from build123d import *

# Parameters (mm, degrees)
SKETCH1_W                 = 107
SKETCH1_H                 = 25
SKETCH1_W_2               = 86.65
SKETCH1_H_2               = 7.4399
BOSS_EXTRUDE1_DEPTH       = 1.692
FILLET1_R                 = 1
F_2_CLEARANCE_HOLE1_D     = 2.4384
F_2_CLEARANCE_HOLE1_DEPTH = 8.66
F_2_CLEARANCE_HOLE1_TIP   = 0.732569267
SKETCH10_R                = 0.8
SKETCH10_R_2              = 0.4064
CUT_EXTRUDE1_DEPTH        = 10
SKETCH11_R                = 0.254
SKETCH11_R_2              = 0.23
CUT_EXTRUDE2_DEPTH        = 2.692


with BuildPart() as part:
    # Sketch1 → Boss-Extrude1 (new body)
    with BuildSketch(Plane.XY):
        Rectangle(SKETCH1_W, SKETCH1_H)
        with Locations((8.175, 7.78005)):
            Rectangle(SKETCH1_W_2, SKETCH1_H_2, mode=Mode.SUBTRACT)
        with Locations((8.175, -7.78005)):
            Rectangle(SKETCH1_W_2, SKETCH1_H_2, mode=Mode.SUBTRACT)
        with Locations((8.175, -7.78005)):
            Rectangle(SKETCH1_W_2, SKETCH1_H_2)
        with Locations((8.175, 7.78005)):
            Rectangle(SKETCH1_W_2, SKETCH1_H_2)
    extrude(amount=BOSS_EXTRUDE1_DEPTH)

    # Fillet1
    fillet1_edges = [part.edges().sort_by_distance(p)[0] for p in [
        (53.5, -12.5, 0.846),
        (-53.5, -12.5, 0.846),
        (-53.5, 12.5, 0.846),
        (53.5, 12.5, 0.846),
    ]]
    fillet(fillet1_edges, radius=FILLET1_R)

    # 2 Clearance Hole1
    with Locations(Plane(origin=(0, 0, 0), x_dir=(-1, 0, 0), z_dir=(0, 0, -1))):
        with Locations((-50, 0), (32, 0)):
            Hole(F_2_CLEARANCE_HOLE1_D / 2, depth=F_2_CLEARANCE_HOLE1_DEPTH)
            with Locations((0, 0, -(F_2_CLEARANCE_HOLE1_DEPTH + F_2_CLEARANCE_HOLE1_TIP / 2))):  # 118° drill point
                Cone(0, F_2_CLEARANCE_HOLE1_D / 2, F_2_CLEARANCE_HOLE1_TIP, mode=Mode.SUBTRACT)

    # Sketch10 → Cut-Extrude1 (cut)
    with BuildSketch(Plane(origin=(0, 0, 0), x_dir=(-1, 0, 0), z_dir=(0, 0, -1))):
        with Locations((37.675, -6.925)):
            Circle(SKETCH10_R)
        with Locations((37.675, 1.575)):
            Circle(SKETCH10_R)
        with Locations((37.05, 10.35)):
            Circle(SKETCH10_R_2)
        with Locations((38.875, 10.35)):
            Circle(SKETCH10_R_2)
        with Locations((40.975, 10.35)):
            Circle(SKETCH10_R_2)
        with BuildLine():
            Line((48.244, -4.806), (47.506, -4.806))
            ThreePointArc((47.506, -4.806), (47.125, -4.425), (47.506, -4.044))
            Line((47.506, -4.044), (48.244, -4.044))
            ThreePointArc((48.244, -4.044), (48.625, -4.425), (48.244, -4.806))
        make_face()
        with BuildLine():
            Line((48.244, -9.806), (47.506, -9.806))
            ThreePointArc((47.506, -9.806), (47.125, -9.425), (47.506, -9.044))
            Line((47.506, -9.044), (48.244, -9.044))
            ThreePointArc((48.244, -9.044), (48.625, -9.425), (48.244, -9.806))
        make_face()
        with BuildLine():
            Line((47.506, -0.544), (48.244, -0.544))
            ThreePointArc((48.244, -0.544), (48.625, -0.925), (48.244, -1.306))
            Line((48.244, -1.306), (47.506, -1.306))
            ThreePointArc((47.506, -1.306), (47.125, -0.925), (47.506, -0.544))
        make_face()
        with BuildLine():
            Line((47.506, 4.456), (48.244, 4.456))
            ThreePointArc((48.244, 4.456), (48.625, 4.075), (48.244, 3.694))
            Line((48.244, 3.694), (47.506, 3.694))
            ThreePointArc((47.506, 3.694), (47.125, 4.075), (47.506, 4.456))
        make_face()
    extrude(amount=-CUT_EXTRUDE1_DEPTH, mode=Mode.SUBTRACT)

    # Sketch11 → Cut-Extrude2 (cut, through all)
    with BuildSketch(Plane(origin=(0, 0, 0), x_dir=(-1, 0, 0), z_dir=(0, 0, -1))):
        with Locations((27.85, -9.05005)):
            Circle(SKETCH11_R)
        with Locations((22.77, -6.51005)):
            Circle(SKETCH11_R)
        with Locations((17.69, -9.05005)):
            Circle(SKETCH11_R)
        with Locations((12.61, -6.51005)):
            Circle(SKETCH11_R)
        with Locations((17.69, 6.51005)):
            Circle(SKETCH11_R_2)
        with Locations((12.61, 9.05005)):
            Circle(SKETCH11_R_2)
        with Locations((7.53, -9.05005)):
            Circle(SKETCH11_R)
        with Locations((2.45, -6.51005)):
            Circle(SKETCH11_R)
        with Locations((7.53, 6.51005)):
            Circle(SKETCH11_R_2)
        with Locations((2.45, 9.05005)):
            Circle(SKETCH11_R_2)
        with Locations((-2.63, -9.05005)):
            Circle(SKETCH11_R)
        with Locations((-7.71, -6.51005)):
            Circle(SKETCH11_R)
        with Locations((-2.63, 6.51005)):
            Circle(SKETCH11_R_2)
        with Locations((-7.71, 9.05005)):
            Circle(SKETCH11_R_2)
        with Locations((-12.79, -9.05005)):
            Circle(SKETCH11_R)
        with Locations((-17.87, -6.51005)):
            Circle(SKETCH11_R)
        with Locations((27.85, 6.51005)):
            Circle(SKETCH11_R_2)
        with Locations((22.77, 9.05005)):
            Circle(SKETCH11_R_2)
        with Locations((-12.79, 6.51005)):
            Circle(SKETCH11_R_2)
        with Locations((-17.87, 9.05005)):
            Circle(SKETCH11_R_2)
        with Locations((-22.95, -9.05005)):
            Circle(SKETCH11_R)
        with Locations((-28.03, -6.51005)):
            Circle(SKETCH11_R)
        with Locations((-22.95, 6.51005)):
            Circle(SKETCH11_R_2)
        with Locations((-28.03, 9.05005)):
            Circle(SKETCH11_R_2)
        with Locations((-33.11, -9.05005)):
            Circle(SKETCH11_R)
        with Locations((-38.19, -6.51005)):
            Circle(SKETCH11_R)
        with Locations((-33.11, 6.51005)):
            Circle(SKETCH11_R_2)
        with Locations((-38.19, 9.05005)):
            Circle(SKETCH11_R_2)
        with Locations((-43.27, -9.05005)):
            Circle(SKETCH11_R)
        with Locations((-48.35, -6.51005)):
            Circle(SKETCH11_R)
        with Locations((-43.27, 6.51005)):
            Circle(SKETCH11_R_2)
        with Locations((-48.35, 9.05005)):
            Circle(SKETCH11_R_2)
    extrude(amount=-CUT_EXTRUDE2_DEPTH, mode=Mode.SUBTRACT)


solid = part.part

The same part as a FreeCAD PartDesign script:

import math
import FreeCAD as App
import Part
import Sketcher
from FreeCAD import Vector


def edges_at(feature, points):
    """Names of the edges that pass closest to the given points."""
    edges = feature.Shape.Edges
    near = lambda p: min(range(len(edges)), key=lambda i: edges[i].distToShape(Part.Vertex(*p))[0])
    return sorted({f"Edge{near(p) + 1}" for p in points})

doc = App.newDocument("Part")
body = doc.addObject("PartDesign::Body", "Body")

# Sketch on XY plane
sketch1 = doc.addObject("Sketcher::SketchObject", "Sketch")
body.addObject(sketch1)
sketch1.AttachmentSupport = (doc.XY_Plane, [""])
sketch1.MapMode = "FlatFace"
sketch1.addGeometry(Part.LineSegment(Vector(-54, 12, 0), Vector(-54, -12, 0)), False)
sketch1.addGeometry(Part.LineSegment(Vector(-54, -12, 0), Vector(54, -12, 0)), False)
sketch1.addGeometry(Part.LineSegment(Vector(54, -12, 0), Vector(54, 12, 0)), False)
sketch1.addGeometry(Part.LineSegment(Vector(54, 12, 0), Vector(-54, 12, 0)), False)
sketch1.addConstraint(Sketcher.Constraint("Coincident", 0, 2, 1, 1))
sketch1.addConstraint(Sketcher.Constraint("Coincident", 1, 2, 2, 1))
sketch1.addConstraint(Sketcher.Constraint("Coincident", 2, 2, 3, 1))
sketch1.addConstraint(Sketcher.Constraint("Coincident", 3, 2, 0, 1))
sketch1.addConstraint(Sketcher.Constraint("Vertical", 0))
sketch1.addConstraint(Sketcher.Constraint("Horizontal", 1))
sketch1.addConstraint(Sketcher.Constraint("Vertical", 2))
sketch1.addConstraint(Sketcher.Constraint("Horizontal", 3))
sketch1.addConstraint(Sketcher.Constraint("Symmetric", 0, 2, 2, 2, -1, 1))
sketch1.addConstraint(Sketcher.Constraint("DistanceX", 1, 1, 1, 2, 107.0))
sketch1.addConstraint(Sketcher.Constraint("DistanceY", 0, 2, 0, 1, 25.0))
pad1 = doc.addObject("PartDesign::Pad", "Pad")
body.addObject(pad1)
pad1.Profile = sketch1
pad1.Length = 1.692
doc.recompute()

fillet = doc.addObject("PartDesign::Fillet", "Fillet")
body.addObject(fillet)
fillet.Base = (pad1, edges_at(pad1, [
    (53.5, -12.5, 0.846),
    (-53.5, -12.5, 0.846),
    (-53.5, 12.5, 0.846),
    (53.5, 12.5, 0.846),
]))
fillet.Radius = 1

# Sketch on XY plane
sketch2 = doc.addObject("Sketcher::SketchObject", "Sketch001")
body.addObject(sketch2)
sketch2.AttachmentSupport = (doc.XY_Plane, [""])
sketch2.MapMode = "FlatFace"
sketch2.addGeometry(Part.Circle(Vector(50, 0, 0), Vector(0, 0, 1), 1.2), False)
sketch2.addGeometry(Part.Circle(Vector(-32, 0, 0), Vector(0, 0, 1), 1.2), False)
sketch2.addConstraint(Sketcher.Constraint("Equal", 0, 1))
sketch2.addConstraint(Sketcher.Constraint("PointOnObject", 0, 3, -1))
sketch2.addConstraint(Sketcher.Constraint("PointOnObject", 1, 3, -1))
sketch2.addConstraint(Sketcher.Constraint("DistanceX", -1, 1, 0, 3, 50.0))
sketch2.addConstraint(Sketcher.Constraint("DistanceX", 1, 3, -1, 1, 32.0))
sketch2.addConstraint(Sketcher.Constraint("Diameter", 0, 2.4384))
doc.recompute()
hole = doc.addObject("PartDesign::Hole", "Hole")
body.addObject(hole)
hole.Profile = sketch2
hole.ThreadType = "None"
hole.Diameter = 2.4384
hole.DepthType = "Dimension"
hole.Depth = 8.66
hole.DrillPoint = "Angled"
hole.DrillPointAngle = 118
hole.Reversed = True

# Sketch on XY plane
sketch3 = doc.addObject("Sketcher::SketchObject", "Sketch002")
body.addObject(sketch3)
sketch3.AttachmentSupport = (doc.XY_Plane, [""])
sketch3.MapMode = "FlatFace"
sketch3.addGeometry(Part.Circle(Vector(-37.67, -6.92, 0), Vector(0, 0, 1), 0.8), False)
sketch3.addGeometry(Part.Circle(Vector(-37.67, 1.57, 0), Vector(0, 0, 1), 0.8), False)
sketch3.addGeometry(Part.Circle(Vector(-37.05, 10.35, 0), Vector(0, 0, 1), 0.41), False)
sketch3.addGeometry(Part.Circle(Vector(-38.88, 10.35, 0), Vector(0, 0, 1), 0.41), False)
sketch3.addGeometry(Part.Circle(Vector(-40.98, 10.35, 0), Vector(0, 0, 1), 0.41), False)
sketch3.addGeometry(Part.LineSegment(Vector(-47.51, -4.81, 0), Vector(-48.24, -4.81, 0)), False)
sketch3.addGeometry(Part.ArcOfCircle(Part.Circle(Vector(-48.24, -4.42, 0), Vector(0, 0, 1), 0.38), math.radians(90), math.radians(270)), False)
sketch3.addGeometry(Part.LineSegment(Vector(-48.24, -4.04, 0), Vector(-47.51, -4.04, 0)), False)
sketch3.addGeometry(Part.ArcOfCircle(Part.Circle(Vector(-47.51, -4.42, 0), Vector(0, 0, 1), 0.38), math.radians(-90), math.radians(90)), False)
sketch3.addGeometry(Part.LineSegment(Vector(-47.51, -9.81, 0), Vector(-48.24, -9.81, 0)), False)
sketch3.addGeometry(Part.ArcOfCircle(Part.Circle(Vector(-48.24, -9.43, 0), Vector(0, 0, 1), 0.38), math.radians(90), math.radians(270)), False)
sketch3.addGeometry(Part.LineSegment(Vector(-48.24, -9.04, 0), Vector(-47.51, -9.04, 0)), False)
sketch3.addGeometry(Part.ArcOfCircle(Part.Circle(Vector(-47.51, -9.43, 0), Vector(0, 0, 1), 0.38), math.radians(-90), math.radians(90)), False)
sketch3.addGeometry(Part.LineSegment(Vector(-48.24, -0.54, 0), Vector(-47.51, -0.54, 0)), False)
sketch3.addGeometry(Part.ArcOfCircle(Part.Circle(Vector(-47.51, -0.93, 0), Vector(0, 0, 1), 0.38), math.radians(-90), math.radians(90)), False)
sketch3.addGeometry(Part.LineSegment(Vector(-47.51, -1.31, 0), Vector(-48.24, -1.31, 0)), False)
sketch3.addGeometry(Part.ArcOfCircle(Part.Circle(Vector(-48.24, -0.93, 0), Vector(0, 0, 1), 0.38), math.radians(90), math.radians(270)), False)
sketch3.addGeometry(Part.LineSegment(Vector(-48.24, 4.46, 0), Vector(-47.51, 4.46, 0)), False)
sketch3.addGeometry(Part.ArcOfCircle(Part.Circle(Vector(-47.51, 4.08, 0), Vector(0, 0, 1), 0.38), math.radians(-90), math.radians(90)), False)
sketch3.addGeometry(Part.LineSegment(Vector(-47.51, 3.69, 0), Vector(-48.24, 3.69, 0)), False)
sketch3.addGeometry(Part.ArcOfCircle(Part.Circle(Vector(-48.24, 4.08, 0), Vector(0, 0, 1), 0.38), math.radians(90), math.radians(270)), False)
sketch3.addConstraint(Sketcher.Constraint("Tangent", 5, 2, 6, 2))
sketch3.addConstraint(Sketcher.Constraint("Tangent", 6, 1, 7, 1))
sketch3.addConstraint(Sketcher.Constraint("Tangent", 7, 2, 8, 2))
sketch3.addConstraint(Sketcher.Constraint("Tangent", 8, 1, 5, 1))
sketch3.addConstraint(Sketcher.Constraint("Tangent", 9, 2, 10, 2))
sketch3.addConstraint(Sketcher.Constraint("Tangent", 10, 1, 11, 1))
sketch3.addConstraint(Sketcher.Constraint("Tangent", 11, 2, 12, 2))
sketch3.addConstraint(Sketcher.Constraint("Tangent", 12, 1, 9, 1))
sketch3.addConstraint(Sketcher.Constraint("Tangent", 13, 2, 14, 2))
sketch3.addConstraint(Sketcher.Constraint("Tangent", 14, 1, 15, 1))
sketch3.addConstraint(Sketcher.Constraint("Tangent", 15, 2, 16, 2))
sketch3.addConstraint(Sketcher.Constraint("Tangent", 16, 1, 13, 1))
sketch3.addConstraint(Sketcher.Constraint("Tangent", 17, 2, 18, 2))
sketch3.addConstraint(Sketcher.Constraint("Tangent", 18, 1, 19, 1))
sketch3.addConstraint(Sketcher.Constraint("Tangent", 19, 2, 20, 2))
sketch3.addConstraint(Sketcher.Constraint("Tangent", 20, 1, 17, 1))
sketch3.addConstraint(Sketcher.Constraint("Horizontal", 5))
sketch3.addConstraint(Sketcher.Constraint("Horizontal", 7))
sketch3.addConstraint(Sketcher.Constraint("Horizontal", 9))
sketch3.addConstraint(Sketcher.Constraint("Horizontal", 11))
sketch3.addConstraint(Sketcher.Constraint("Horizontal", 13))
sketch3.addConstraint(Sketcher.Constraint("Horizontal", 15))
sketch3.addConstraint(Sketcher.Constraint("Horizontal", 17))
sketch3.addConstraint(Sketcher.Constraint("Horizontal", 19))
sketch3.addConstraint(Sketcher.Constraint("Equal", 0, 1))
sketch3.addConstraint(Sketcher.Constraint("Equal", 2, 3))
sketch3.addConstraint(Sketcher.Constraint("Equal", 3, 4))
sketch3.addConstraint(Sketcher.Constraint("Equal", 8, 10))
sketch3.addConstraint(Sketcher.Constraint("Equal", 12, 14))
sketch3.addConstraint(Sketcher.Constraint("Equal", 16, 18))
sketch3.addConstraint(Sketcher.Constraint("Horizontal", 2, 3, 3, 3))
sketch3.addConstraint(Sketcher.Constraint("Horizontal", 3, 3, 4, 3))
sketch3.addConstraint(Sketcher.Constraint("Vertical", 0, 3, 1, 3))
sketch3.addConstraint(Sketcher.Constraint("Vertical", 6, 3, 10, 3))
sketch3.addConstraint(Sketcher.Constraint("Vertical", 8, 3, 12, 3))
sketch3.addConstraint(Sketcher.Constraint("Vertical", 12, 3, 14, 3))
sketch3.addConstraint(Sketcher.Constraint("Vertical", 10, 3, 16, 3))
sketch3.addConstraint(Sketcher.Constraint("Vertical", 14, 3, 18, 3))
sketch3.addConstraint(Sketcher.Constraint("Vertical", 16, 3, 20, 3))
sketch3.addConstraint(Sketcher.Constraint("Diameter", 0, 1.6))
sketch3.addConstraint(Sketcher.Constraint("Radius", 6, 0.381))
sketch3.addConstraint(Sketcher.Constraint("DistanceY", 6, 3, 1, 3, 6.0))
sketch3.addConstraint(Sketcher.Constraint("DistanceY", 10, 3, 6, 3, 5.0))
sketch3.addConstraint(Sketcher.Constraint("DistanceY", 14, 3, 18, 3, 5.0))
sketch3.addConstraint(Sketcher.Constraint("Diameter", 2, 0.8128))
sketch3.addConstraint(Sketcher.Constraint("DistanceY", 0, 3, 1, 3, 8.5))
sketch3.addConstraint(Sketcher.Constraint("DistanceX", 3, 3, 1, 3, 1.2))
sketch3.addConstraint(Sketcher.Constraint("DistanceX", 4, 3, 3, 3, 2.1))
sketch3.addConstraint(Sketcher.Constraint("DistanceY", 8, 3, 14, 3, 3.5))
sketch3.addConstraint(Sketcher.Constraint("DistanceX", 5, 2, 5, 1, 0.738))
sketch3.addConstraint(Sketcher.Constraint("DistanceX", 2, 3, -1, 1, 37.05))
sketch3.addConstraint(Sketcher.Constraint("DistanceY", -1, 1, 2, 3, 10.35))
sketch3.addConstraint(Sketcher.Constraint("DistanceX", 0, 3, -1, 1, 37.675))
sketch3.addConstraint(Sketcher.Constraint("DistanceY", 0, 3, -1, 1, 6.925))
sketch3.addConstraint(Sketcher.Constraint("DistanceX", 6, 3, -1, 1, 48.244))
pocket1 = doc.addObject("PartDesign::Pocket", "Pocket")
body.addObject(pocket1)
pocket1.Profile = sketch3
pocket1.Length = 10
pocket1.Reversed = True

# Sketch on XY plane
sketch4 = doc.addObject("Sketcher::SketchObject", "Sketch003")
body.addObject(sketch4)
sketch4.AttachmentSupport = (doc.XY_Plane, [""])
sketch4.MapMode = "FlatFace"
sketch4.addGeometry(Part.Circle(Vector(-27.85, -9.05, 0), Vector(0, 0, 1), 0.25), False)
sketch4.addGeometry(Part.Circle(Vector(-22.77, -6.51, 0), Vector(0, 0, 1), 0.25), False)
sketch4.addGeometry(Part.Circle(Vector(-17.69, -9.05, 0), Vector(0, 0, 1), 0.25), False)
sketch4.addGeometry(Part.Circle(Vector(-12.61, -6.51, 0), Vector(0, 0, 1), 0.25), False)
sketch4.addGeometry(Part.Circle(Vector(-17.69, 6.51, 0), Vector(0, 0, 1), 0.23), False)
sketch4.addGeometry(Part.Circle(Vector(-12.61, 9.05, 0), Vector(0, 0, 1), 0.23), False)
sketch4.addGeometry(Part.Circle(Vector(-7.53, -9.05, 0), Vector(0, 0, 1), 0.25), False)
sketch4.addGeometry(Part.Circle(Vector(-2.45, -6.51, 0), Vector(0, 0, 1), 0.25), False)
sketch4.addGeometry(Part.Circle(Vector(-7.53, 6.51, 0), Vector(0, 0, 1), 0.23), False)
sketch4.addGeometry(Part.Circle(Vector(-2.45, 9.05, 0), Vector(0, 0, 1), 0.23), False)
sketch4.addGeometry(Part.Circle(Vector(2.63, -9.05, 0), Vector(0, 0, 1), 0.25), False)
sketch4.addGeometry(Part.Circle(Vector(7.71, -6.51, 0), Vector(0, 0, 1), 0.25), False)
sketch4.addGeometry(Part.Circle(Vector(2.63, 6.51, 0), Vector(0, 0, 1), 0.23), False)
sketch4.addGeometry(Part.Circle(Vector(7.71, 9.05, 0), Vector(0, 0, 1), 0.23), False)
sketch4.addGeometry(Part.Circle(Vector(12.79, -9.05, 0), Vector(0, 0, 1), 0.25), False)
sketch4.addGeometry(Part.Circle(Vector(17.87, -6.51, 0), Vector(0, 0, 1), 0.25), False)
sketch4.addGeometry(Part.Circle(Vector(-27.85, 6.51, 0), Vector(0, 0, 1), 0.23), False)
sketch4.addGeometry(Part.Circle(Vector(-22.77, 9.05, 0), Vector(0, 0, 1), 0.23), False)
sketch4.addGeometry(Part.Circle(Vector(12.79, 6.51, 0), Vector(0, 0, 1), 0.23), False)
sketch4.addGeometry(Part.Circle(Vector(17.87, 9.05, 0), Vector(0, 0, 1), 0.23), False)
sketch4.addGeometry(Part.Circle(Vector(22.95, -9.05, 0), Vector(0, 0, 1), 0.25), False)
sketch4.addGeometry(Part.Circle(Vector(28.03, -6.51, 0), Vector(0, 0, 1), 0.25), False)
sketch4.addGeometry(Part.Circle(Vector(22.95, 6.51, 0), Vector(0, 0, 1), 0.23), False)
sketch4.addGeometry(Part.Circle(Vector(28.03, 9.05, 0), Vector(0, 0, 1), 0.23), False)
sketch4.addGeometry(Part.Circle(Vector(33.11, -9.05, 0), Vector(0, 0, 1), 0.25), False)
sketch4.addGeometry(Part.Circle(Vector(38.19, -6.51, 0), Vector(0, 0, 1), 0.25), False)
sketch4.addGeometry(Part.Circle(Vector(33.11, 6.51, 0), Vector(0, 0, 1), 0.23), False)
sketch4.addGeometry(Part.Circle(Vector(38.19, 9.05, 0), Vector(0, 0, 1), 0.23), False)
sketch4.addGeometry(Part.Circle(Vector(43.27, -9.05, 0), Vector(0, 0, 1), 0.25), False)
sketch4.addGeometry(Part.Circle(Vector(48.35, -6.51, 0), Vector(0, 0, 1), 0.25), False)
sketch4.addGeometry(Part.Circle(Vector(43.27, 6.51, 0), Vector(0, 0, 1), 0.23), False)
sketch4.addGeometry(Part.Circle(Vector(48.35, 9.05, 0), Vector(0, 0, 1), 0.23), False)
sketch4.addConstraint(Sketcher.Constraint("Equal", 0, 1))
sketch4.addConstraint(Sketcher.Constraint("Equal", 1, 2))
sketch4.addConstraint(Sketcher.Constraint("Equal", 2, 3))
sketch4.addConstraint(Sketcher.Constraint("Equal", 4, 5))
sketch4.addConstraint(Sketcher.Constraint("Equal", 3, 6))
sketch4.addConstraint(Sketcher.Constraint("Equal", 6, 7))
sketch4.addConstraint(Sketcher.Constraint("Equal", 5, 8))
sketch4.addConstraint(Sketcher.Constraint("Equal", 8, 9))
sketch4.addConstraint(Sketcher.Constraint("Equal", 7, 10))
sketch4.addConstraint(Sketcher.Constraint("Equal", 10, 11))
sketch4.addConstraint(Sketcher.Constraint("Equal", 9, 12))
sketch4.addConstraint(Sketcher.Constraint("Equal", 12, 13))
sketch4.addConstraint(Sketcher.Constraint("Equal", 11, 14))
sketch4.addConstraint(Sketcher.Constraint("Equal", 14, 15))
sketch4.addConstraint(Sketcher.Constraint("Equal", 13, 16))
sketch4.addConstraint(Sketcher.Constraint("Equal", 16, 17))
sketch4.addConstraint(Sketcher.Constraint("Equal", 17, 18))
sketch4.addConstraint(Sketcher.Constraint("Equal", 18, 19))
sketch4.addConstraint(Sketcher.Constraint("Equal", 15, 20))
sketch4.addConstraint(Sketcher.Constraint("Equal", 20, 21))
sketch4.addConstraint(Sketcher.Constraint("Equal", 19, 22))
sketch4.addConstraint(Sketcher.Constraint("Equal", 22, 23))
sketch4.addConstraint(Sketcher.Constraint("Equal", 21, 24))
sketch4.addConstraint(Sketcher.Constraint("Equal", 24, 25))
sketch4.addConstraint(Sketcher.Constraint("Equal", 23, 26))
sketch4.addConstraint(Sketcher.Constraint("Equal", 26, 27))
sketch4.addConstraint(Sketcher.Constraint("Equal", 25, 28))
sketch4.addConstraint(Sketcher.Constraint("Equal", 28, 29))
sketch4.addConstraint(Sketcher.Constraint("Equal", 27, 30))
sketch4.addConstraint(Sketcher.Constraint("Equal", 30, 31))
sketch4.addConstraint(Sketcher.Constraint("Horizontal", 0, 3, 2, 3))
sketch4.addConstraint(Sketcher.Constraint("Horizontal", 1, 3, 3, 3))
sketch4.addConstraint(Sketcher.Constraint("Horizontal", 2, 3, 6, 3))
sketch4.addConstraint(Sketcher.Constraint("Horizontal", 3, 3, 7, 3))
sketch4.addConstraint(Sketcher.Constraint("Horizontal", 4, 3, 8, 3))
sketch4.addConstraint(Sketcher.Constraint("Horizontal", 5, 3, 9, 3))
sketch4.addConstraint(Sketcher.Constraint("Horizontal", 6, 3, 10, 3))
sketch4.addConstraint(Sketcher.Constraint("Horizontal", 7, 3, 11, 3))
sketch4.addConstraint(Sketcher.Constraint("Horizontal", 8, 3, 12, 3))
sketch4.addConstraint(Sketcher.Constraint("Horizontal", 9, 3, 13, 3))
sketch4.addConstraint(Sketcher.Constraint("Horizontal", 10, 3, 14, 3))
sketch4.addConstraint(Sketcher.Constraint("Horizontal", 11, 3, 15, 3))
sketch4.addConstraint(Sketcher.Constraint("Horizontal", 12, 3, 16, 3))
sketch4.addConstraint(Sketcher.Constraint("Horizontal", 13, 3, 17, 3))
sketch4.addConstraint(Sketcher.Constraint("Horizontal", 16, 3, 18, 3))
sketch4.addConstraint(Sketcher.Constraint("Horizontal", 17, 3, 19, 3))
sketch4.addConstraint(Sketcher.Constraint("Horizontal", 14, 3, 20, 3))
sketch4.addConstraint(Sketcher.Constraint("Horizontal", 15, 3, 21, 3))
sketch4.addConstraint(Sketcher.Constraint("Horizontal", 18, 3, 22, 3))
sketch4.addConstraint(Sketcher.Constraint("Horizontal", 19, 3, 23, 3))
sketch4.addConstraint(Sketcher.Constraint("Horizontal", 20, 3, 24, 3))
sketch4.addConstraint(Sketcher.Constraint("Horizontal", 21, 3, 25, 3))
sketch4.addConstraint(Sketcher.Constraint("Horizontal", 22, 3, 26, 3))
sketch4.addConstraint(Sketcher.Constraint("Horizontal", 23, 3, 27, 3))
sketch4.addConstraint(Sketcher.Constraint("Horizontal", 24, 3, 28, 3))
sketch4.addConstraint(Sketcher.Constraint("Horizontal", 25, 3, 29, 3))
sketch4.addConstraint(Sketcher.Constraint("Horizontal", 26, 3, 30, 3))
sketch4.addConstraint(Sketcher.Constraint("Horizontal", 27, 3, 31, 3))
sketch4.addConstraint(Sketcher.Constraint("Vertical", 2, 3, 4, 3))
sketch4.addConstraint(Sketcher.Constraint("Vertical", 3, 3, 5, 3))
sketch4.addConstraint(Sketcher.Constraint("Vertical", 6, 3, 8, 3))
sketch4.addConstraint(Sketcher.Constraint("Vertical", 7, 3, 9, 3))
sketch4.addConstraint(Sketcher.Constraint("Vertical", 10, 3, 12, 3))
sketch4.addConstraint(Sketcher.Constraint("Vertical", 11, 3, 13, 3))
sketch4.addConstraint(Sketcher.Constraint("Vertical", 0, 3, 16, 3))
sketch4.addConstraint(Sketcher.Constraint("Vertical", 1, 3, 17, 3))
sketch4.addConstraint(Sketcher.Constraint("Vertical", 14, 3, 18, 3))
sketch4.addConstraint(Sketcher.Constraint("Vertical", 15, 3, 19, 3))
sketch4.addConstraint(Sketcher.Constraint("Vertical", 20, 3, 22, 3))
sketch4.addConstraint(Sketcher.Constraint("Vertical", 21, 3, 23, 3))
sketch4.addConstraint(Sketcher.Constraint("Vertical", 24, 3, 26, 3))
sketch4.addConstraint(Sketcher.Constraint("Vertical", 25, 3, 27, 3))
sketch4.addConstraint(Sketcher.Constraint("Vertical", 28, 3, 30, 3))
sketch4.addConstraint(Sketcher.Constraint("Vertical", 29, 3, 31, 3))
sketch4.addConstraint(Sketcher.Constraint("Diameter", 4, 0.46))
sketch4.addConstraint(Sketcher.Constraint("Diameter", 0, 0.508))
sketch4.addConstraint(Sketcher.Constraint("DistanceX", 0, 3, -1, 1, 27.85))
sketch4.addConstraint(Sketcher.Constraint("DistanceX", 1, 3, -1, 1, 22.77))
sketch4.addConstraint(Sketcher.Constraint("DistanceX", 2, 3, -1, 1, 17.69))
sketch4.addConstraint(Sketcher.Constraint("DistanceX", 3, 3, -1, 1, 12.61))
sketch4.addConstraint(Sketcher.Constraint("DistanceX", 6, 3, -1, 1, 7.53))
sketch4.addConstraint(Sketcher.Constraint("DistanceX", 7, 3, -1, 1, 2.45))
sketch4.addConstraint(Sketcher.Constraint("DistanceX", -1, 1, 10, 3, 2.63))
sketch4.addConstraint(Sketcher.Constraint("DistanceX", -1, 1, 11, 3, 7.71))
sketch4.addConstraint(Sketcher.Constraint("DistanceX", -1, 1, 14, 3, 12.79))
sketch4.addConstraint(Sketcher.Constraint("DistanceX", -1, 1, 15, 3, 17.87))
sketch4.addConstraint(Sketcher.Constraint("DistanceX", -1, 1, 20, 3, 22.95))
sketch4.addConstraint(Sketcher.Constraint("DistanceX", -1, 1, 21, 3, 28.03))
sketch4.addConstraint(Sketcher.Constraint("DistanceX", -1, 1, 24, 3, 33.11))
sketch4.addConstraint(Sketcher.Constraint("DistanceX", -1, 1, 25, 3, 38.19))
sketch4.addConstraint(Sketcher.Constraint("DistanceX", -1, 1, 28, 3, 43.27))
sketch4.addConstraint(Sketcher.Constraint("DistanceX", -1, 1, 29, 3, 48.35))
sketch4.addConstraint(Sketcher.Constraint("DistanceY", 0, 3, 1, 3, 2.54))
sketch4.addConstraint(Sketcher.Constraint("DistanceY", 4, 3, 5, 3, 2.54))
sketch4.addConstraint(Sketcher.Constraint("DistanceY", 1, 3, 4, 3, 13.0201))
sketch4.addConstraint(Sketcher.Constraint("DistanceY", 0, 3, -1, 1, 9.05005))
pocket2 = doc.addObject("PartDesign::Pocket", "Pocket001")
body.addObject(pocket2)
pocket2.Profile = sketch4
pocket2.Type = "ThroughAll"
pocket2.Reversed = True

doc.recompute()
